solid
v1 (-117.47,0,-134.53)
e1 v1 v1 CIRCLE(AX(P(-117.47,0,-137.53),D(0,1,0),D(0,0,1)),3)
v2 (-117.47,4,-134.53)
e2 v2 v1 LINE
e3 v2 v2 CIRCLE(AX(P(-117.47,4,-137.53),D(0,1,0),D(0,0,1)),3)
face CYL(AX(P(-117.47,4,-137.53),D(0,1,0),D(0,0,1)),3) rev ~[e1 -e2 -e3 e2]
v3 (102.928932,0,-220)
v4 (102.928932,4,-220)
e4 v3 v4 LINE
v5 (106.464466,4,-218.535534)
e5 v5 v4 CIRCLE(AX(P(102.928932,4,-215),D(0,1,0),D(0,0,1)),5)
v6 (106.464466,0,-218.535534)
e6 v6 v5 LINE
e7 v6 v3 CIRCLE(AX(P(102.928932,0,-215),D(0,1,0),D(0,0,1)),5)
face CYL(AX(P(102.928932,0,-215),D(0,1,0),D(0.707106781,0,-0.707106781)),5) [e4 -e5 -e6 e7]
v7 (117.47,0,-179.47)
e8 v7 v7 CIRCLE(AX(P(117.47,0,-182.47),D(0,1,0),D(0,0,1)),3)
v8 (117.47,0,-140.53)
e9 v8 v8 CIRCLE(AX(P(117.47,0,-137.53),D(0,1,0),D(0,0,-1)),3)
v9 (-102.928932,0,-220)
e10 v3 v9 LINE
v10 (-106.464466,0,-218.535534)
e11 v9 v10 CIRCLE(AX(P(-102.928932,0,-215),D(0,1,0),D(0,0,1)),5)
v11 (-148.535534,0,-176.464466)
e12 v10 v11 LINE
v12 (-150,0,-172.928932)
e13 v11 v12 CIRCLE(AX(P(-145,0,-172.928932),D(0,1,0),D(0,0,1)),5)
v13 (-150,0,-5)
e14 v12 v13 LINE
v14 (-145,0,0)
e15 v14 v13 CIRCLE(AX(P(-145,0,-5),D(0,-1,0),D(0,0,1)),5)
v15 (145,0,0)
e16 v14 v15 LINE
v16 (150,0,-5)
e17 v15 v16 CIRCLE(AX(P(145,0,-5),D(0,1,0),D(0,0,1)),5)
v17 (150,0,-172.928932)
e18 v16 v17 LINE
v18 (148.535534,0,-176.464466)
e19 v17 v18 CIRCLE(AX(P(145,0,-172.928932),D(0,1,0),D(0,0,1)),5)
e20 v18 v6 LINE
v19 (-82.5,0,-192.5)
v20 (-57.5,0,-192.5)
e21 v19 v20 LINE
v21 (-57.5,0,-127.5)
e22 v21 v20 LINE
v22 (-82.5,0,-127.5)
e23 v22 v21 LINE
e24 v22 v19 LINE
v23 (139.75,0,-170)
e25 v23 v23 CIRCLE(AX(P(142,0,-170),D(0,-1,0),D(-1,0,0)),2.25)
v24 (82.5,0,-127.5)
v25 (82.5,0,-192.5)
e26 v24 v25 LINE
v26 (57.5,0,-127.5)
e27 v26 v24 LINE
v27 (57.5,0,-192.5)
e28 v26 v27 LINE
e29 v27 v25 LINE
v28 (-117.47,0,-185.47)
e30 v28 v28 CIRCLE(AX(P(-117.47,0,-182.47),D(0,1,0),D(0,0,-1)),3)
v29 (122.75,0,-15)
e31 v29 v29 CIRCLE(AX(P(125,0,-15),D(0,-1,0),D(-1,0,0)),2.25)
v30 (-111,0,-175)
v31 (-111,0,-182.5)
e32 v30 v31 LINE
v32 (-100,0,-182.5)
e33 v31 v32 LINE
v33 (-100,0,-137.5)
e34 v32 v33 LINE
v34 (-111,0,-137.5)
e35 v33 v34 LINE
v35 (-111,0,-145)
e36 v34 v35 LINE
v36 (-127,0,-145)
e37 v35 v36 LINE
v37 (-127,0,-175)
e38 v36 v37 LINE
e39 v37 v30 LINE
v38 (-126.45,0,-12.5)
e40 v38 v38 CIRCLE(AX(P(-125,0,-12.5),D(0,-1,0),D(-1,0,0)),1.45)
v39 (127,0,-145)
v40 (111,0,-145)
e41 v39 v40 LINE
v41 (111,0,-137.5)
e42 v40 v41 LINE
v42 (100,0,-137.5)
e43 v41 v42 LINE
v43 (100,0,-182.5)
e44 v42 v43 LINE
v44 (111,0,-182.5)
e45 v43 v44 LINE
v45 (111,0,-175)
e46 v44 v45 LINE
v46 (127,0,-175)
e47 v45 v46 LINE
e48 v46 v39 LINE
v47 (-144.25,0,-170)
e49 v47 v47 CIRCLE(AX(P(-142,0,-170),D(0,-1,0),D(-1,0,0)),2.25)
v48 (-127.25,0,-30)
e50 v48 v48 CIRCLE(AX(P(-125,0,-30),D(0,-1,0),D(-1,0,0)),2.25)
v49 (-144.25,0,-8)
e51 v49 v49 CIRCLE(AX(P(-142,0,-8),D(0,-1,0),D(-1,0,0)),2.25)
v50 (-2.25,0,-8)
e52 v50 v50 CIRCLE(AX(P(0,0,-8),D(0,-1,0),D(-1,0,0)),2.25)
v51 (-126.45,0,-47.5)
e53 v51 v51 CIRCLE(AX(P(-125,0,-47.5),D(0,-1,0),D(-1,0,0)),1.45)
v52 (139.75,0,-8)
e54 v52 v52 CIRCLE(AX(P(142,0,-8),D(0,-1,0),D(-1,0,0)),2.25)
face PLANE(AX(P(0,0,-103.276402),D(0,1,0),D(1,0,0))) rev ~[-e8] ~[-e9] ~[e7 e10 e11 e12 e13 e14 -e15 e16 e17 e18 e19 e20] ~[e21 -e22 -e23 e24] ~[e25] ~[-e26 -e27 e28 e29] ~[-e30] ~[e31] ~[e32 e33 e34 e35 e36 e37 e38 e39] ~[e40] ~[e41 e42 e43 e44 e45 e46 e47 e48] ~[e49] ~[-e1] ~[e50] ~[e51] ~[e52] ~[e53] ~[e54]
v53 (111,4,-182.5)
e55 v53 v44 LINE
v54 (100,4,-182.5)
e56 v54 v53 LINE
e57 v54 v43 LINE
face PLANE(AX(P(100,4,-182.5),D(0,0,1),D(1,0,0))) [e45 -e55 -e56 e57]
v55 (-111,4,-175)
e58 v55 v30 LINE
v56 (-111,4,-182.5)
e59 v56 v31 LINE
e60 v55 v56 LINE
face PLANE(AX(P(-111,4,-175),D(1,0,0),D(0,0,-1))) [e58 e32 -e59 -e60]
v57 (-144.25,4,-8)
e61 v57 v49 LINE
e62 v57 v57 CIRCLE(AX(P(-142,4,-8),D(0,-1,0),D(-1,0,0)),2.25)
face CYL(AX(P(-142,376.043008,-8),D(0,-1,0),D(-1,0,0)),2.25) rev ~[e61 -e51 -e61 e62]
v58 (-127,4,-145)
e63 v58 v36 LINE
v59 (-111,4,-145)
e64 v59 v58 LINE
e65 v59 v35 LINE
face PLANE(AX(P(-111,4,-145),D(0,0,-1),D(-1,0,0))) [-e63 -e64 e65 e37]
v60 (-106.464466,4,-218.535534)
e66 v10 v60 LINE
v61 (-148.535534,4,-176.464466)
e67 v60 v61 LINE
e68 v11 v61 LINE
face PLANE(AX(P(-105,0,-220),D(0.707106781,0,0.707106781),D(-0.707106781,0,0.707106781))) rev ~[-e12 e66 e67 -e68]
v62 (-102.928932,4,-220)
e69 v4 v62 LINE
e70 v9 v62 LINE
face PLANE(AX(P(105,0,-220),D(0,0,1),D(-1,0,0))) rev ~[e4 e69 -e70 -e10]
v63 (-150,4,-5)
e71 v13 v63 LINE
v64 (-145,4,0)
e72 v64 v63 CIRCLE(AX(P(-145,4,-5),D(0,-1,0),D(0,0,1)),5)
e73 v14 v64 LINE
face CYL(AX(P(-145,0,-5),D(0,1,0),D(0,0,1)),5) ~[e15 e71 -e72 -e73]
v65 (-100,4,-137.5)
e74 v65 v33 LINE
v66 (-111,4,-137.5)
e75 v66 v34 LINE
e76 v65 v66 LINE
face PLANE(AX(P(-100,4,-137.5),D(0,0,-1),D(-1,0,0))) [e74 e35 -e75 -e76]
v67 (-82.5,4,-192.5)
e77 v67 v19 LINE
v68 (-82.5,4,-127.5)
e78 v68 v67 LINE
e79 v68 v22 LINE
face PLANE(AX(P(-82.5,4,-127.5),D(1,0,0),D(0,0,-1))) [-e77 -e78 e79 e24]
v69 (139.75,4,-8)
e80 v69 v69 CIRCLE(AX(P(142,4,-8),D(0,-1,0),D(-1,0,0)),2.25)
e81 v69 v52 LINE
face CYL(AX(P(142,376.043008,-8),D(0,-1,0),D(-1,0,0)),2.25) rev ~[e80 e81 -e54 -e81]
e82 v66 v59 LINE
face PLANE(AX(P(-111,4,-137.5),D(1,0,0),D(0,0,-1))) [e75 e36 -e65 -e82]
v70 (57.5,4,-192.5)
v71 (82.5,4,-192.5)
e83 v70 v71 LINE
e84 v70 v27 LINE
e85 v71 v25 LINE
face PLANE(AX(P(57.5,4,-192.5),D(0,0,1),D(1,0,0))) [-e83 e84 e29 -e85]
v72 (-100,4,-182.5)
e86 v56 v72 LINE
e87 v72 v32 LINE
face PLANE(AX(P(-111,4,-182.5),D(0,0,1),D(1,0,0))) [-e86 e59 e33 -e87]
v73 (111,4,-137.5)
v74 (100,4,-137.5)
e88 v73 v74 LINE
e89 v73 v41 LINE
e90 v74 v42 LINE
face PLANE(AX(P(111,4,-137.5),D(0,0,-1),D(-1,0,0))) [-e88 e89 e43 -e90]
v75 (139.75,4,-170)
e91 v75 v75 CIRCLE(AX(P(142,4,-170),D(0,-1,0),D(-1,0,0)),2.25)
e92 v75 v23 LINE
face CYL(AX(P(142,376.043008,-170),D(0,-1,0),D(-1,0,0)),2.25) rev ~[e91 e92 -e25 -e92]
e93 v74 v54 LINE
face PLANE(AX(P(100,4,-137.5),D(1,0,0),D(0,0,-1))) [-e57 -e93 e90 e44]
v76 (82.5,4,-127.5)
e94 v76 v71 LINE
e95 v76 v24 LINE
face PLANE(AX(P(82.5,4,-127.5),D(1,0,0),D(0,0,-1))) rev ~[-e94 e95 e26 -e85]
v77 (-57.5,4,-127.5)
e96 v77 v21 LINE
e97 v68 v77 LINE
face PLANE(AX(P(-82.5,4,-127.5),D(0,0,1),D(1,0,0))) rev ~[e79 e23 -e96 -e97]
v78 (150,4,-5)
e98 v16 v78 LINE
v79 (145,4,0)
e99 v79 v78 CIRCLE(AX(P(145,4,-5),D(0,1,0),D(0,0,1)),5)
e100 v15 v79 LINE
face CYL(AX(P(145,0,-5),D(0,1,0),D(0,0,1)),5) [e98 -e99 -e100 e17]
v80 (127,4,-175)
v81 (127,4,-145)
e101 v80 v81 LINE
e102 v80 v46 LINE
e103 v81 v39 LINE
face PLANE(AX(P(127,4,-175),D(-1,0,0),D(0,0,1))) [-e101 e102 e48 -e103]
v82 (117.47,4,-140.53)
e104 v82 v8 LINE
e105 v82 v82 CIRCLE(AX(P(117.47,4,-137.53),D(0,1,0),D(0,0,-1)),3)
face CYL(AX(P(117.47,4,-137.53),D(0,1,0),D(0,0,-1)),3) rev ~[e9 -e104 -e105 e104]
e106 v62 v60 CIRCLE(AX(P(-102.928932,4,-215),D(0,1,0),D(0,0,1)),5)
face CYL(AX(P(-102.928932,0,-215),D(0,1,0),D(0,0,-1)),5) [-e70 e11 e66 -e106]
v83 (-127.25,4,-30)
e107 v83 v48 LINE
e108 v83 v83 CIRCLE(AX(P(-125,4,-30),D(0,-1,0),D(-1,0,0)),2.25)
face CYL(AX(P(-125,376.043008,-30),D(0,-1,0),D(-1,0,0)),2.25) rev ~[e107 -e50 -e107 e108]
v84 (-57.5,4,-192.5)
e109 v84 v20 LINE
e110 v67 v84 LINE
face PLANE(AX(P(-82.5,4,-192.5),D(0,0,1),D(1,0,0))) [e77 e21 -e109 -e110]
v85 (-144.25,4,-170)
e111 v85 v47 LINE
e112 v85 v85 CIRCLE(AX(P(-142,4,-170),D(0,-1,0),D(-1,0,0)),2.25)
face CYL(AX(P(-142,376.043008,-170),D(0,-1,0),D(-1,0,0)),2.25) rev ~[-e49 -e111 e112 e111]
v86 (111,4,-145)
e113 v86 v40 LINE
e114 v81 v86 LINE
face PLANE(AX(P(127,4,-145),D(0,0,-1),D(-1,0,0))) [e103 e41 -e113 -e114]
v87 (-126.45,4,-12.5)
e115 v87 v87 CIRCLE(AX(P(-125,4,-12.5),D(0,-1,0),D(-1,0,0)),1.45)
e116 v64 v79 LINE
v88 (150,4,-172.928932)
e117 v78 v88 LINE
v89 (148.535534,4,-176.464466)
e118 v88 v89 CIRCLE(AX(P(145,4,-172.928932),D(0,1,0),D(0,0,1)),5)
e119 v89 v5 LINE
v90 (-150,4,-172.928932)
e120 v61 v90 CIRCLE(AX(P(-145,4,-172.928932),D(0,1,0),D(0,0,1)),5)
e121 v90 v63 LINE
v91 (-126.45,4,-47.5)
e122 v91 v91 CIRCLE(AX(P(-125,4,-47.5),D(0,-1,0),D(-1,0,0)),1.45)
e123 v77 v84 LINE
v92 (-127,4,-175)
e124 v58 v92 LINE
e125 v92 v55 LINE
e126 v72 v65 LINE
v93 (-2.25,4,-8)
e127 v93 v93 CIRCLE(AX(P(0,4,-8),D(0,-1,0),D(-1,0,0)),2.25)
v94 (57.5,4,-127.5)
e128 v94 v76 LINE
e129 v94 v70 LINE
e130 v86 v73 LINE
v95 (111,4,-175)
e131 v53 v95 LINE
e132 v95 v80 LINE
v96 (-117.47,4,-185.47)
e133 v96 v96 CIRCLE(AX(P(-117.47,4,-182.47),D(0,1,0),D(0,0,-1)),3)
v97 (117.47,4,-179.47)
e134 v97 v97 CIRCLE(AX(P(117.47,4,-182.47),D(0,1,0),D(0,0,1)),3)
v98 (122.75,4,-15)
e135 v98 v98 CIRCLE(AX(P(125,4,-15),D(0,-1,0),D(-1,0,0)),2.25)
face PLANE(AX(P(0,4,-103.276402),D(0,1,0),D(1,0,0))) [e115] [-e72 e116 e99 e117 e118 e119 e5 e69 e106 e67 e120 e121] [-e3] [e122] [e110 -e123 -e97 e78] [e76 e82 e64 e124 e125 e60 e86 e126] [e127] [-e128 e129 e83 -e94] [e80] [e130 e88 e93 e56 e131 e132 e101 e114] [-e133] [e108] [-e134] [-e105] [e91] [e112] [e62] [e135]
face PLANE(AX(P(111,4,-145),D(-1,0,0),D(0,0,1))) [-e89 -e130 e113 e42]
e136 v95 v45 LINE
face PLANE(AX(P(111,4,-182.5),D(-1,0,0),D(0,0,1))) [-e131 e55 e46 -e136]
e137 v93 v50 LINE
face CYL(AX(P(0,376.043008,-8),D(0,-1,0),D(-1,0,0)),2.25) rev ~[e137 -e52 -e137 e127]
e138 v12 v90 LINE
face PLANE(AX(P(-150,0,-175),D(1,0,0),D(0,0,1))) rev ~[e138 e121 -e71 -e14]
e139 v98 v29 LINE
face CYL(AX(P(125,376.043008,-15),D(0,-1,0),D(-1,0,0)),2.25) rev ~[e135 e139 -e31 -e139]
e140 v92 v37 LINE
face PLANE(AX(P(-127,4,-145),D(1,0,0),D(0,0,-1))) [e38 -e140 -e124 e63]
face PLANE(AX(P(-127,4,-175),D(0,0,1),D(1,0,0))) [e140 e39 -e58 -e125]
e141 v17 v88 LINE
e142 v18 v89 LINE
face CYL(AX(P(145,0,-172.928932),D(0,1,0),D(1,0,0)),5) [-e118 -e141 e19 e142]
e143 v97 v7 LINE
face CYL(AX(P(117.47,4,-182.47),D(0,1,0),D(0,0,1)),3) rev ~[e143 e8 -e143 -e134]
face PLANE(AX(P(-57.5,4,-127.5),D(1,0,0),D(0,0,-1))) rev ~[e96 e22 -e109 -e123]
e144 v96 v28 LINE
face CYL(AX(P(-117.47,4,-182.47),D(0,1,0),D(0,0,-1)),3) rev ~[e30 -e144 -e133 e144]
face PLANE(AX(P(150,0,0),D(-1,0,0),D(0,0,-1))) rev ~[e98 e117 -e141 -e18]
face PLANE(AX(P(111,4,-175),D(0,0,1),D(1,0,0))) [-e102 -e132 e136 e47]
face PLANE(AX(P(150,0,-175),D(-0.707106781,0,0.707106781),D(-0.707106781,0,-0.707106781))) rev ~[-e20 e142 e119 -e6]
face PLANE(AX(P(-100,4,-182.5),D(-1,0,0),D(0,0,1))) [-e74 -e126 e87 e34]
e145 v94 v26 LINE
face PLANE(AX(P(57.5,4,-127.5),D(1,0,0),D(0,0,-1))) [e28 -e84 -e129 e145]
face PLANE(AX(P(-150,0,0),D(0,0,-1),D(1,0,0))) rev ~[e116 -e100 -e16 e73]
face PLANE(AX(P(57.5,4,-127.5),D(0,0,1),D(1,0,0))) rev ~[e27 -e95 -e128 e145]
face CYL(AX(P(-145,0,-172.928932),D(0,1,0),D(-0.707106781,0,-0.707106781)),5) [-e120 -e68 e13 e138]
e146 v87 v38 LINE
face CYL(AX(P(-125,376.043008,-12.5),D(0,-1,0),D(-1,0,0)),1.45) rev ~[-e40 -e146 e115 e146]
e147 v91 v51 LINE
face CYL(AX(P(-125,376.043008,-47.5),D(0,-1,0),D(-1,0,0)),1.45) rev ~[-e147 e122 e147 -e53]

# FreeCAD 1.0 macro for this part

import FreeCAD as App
import Part
import Sketcher

V = App.Vector


def edges_at(feature, points):
    """Names of the edges that pass closest to the given points."""
    edges = feature.Shape.Edges
    near = lambda p: min(range(len(edges)), key=lambda i: edges[i].distToShape(Part.Vertex(*p))[0])
    return sorted({f"Edge{near(p) + 1}" for p in points})


def add_polygon(sketch, points):
    """Adds a closed chain of lines whose ends are joined by coincident constraints."""
    first, n = sketch.GeometryCount, len(points)
    for a, b in zip(points, points[1:] + points[:1]):
        sketch.addGeometry(Part.LineSegment(App.Vector(*a, 0), App.Vector(*b, 0)), False)
    for i in range(n):
        sketch.addConstraint(Sketcher.Constraint("Coincident", first + i, 2, first + (i + 1) % n, 1))

doc = App.newDocument("Part")
params = doc.addObject("Spreadsheet::Sheet", "Params")
for row, (alias, value) in enumerate([
    ("sketch1_width", "300 mm"),
    ("sketch1_width2", "210 mm"),
    ("sketch1_height", "175 mm"),
    ("pad1_length", "4 mm"),
    ("fillet_radius", "5 mm"),
    ("sketch2_diameter", "6 mm"),
    ("sketch2_width", "25 mm"),
    ("sketch2_width2", "11 mm"),
    ("sketch2_width3", "16 mm"),
    ("sketch2_height", "65 mm"),
    ("sketch3_diameter", "4.5 mm"),
    ("hole_diameter", "4.5 mm"),
    ("sketch4_diameter", "4.5 mm"),
    ("hole2_diameter", "4.5 mm"),
    ("sketch5_diameter", "2.9 mm"),
    ("hole3_diameter", "2.9 mm"),
], start=1):
    params.set(f"A{row}", alias)
    params.set(f"B{row}", "=" + value)
    params.setAlias(f"B{row}", alias)

body = doc.addObject("PartDesign::Body", "Body")

# Sketch on XZ plane
sketch1 = body.newObject("Sketcher::SketchObject", "Sketch")
sketch1.AttachmentSupport = (doc.getObject("XZ_Plane"), [""])
sketch1.MapMode = "FlatFace"
add_polygon(sketch1, [(-150, 0), (150, 0), (150, -175), (105, -220), (-105, -220), (-150, -175)])  # lines 0-5
sketch1.addConstraint([
    Sketcher.Constraint("Horizontal", 0),
    Sketcher.Constraint("Vertical", 1),
    Sketcher.Constraint("Horizontal", 3),
    Sketcher.Constraint("Vertical", 5),
    Sketcher.Constraint("Symmetric", 0, 2, 5, 2, -1, 1),
    Sketcher.Constraint("Perpendicular", 2, 4),
    Sketcher.Constraint("Horizontal", 1, 2, 4, 2),
    Sketcher.Constraint("Equal", 2, 4),
    Sketcher.Constraint("DistanceX", 0, 1, 0, 2, 300.0),
    Sketcher.Constraint("DistanceX", 3, 2, 3, 1, 210.0),
    Sketcher.Constraint("DistanceY", 1, 2, 1, 1, 175.0),
])
sketch1.setExpression("Constraints[14]", "Params.sketch1_width")
sketch1.setExpression("Constraints[15]", "Params.sketch1_width2")
sketch1.setExpression("Constraints[16]", "Params.sketch1_height")
pad1 = body.newObject("PartDesign::Pad", "Pad")
pad1.Profile = sketch1
pad1.setExpression("Length", "Params.pad1_length")
pad1.Reversed = True
doc.recompute()

fillet = body.newObject("PartDesign::Fillet", "Fillet")
fillet.Base = (pad1, edges_at(pad1, [
    (150, 2, 0),
    (-150, 2, 0),
    (-150, 2, -175),
    (-105, 2, -220),
    (105, 2, -220),
    (150, 2, -175),
]))
fillet.setExpression("Radius", "Params.fillet_radius")

# Sketch on XZ plane
sketch2 = body.newObject("Sketcher::SketchObject", "Sketch001")
sketch2.AttachmentSupport = (doc.getObject("XZ_Plane"), [""])
sketch2.MapMode = "FlatFace"
sketch2.AttachmentOffset = App.Placement(V(0, 0, -4), App.Rotation())
sketch2.addGeometry(Part.Circle(V(117.5, -182.5, 0), V(0, 0, 1), 3), False)  # 0
sketch2.addGeometry(Part.Circle(V(117.5, -137.5, 0), V(0, 0, 1), 3), False)  # 1
sketch2.addGeometry(Part.Circle(V(-117.5, -137.5, 0), V(0, 0, 1), 3), False)  # 2
sketch2.addGeometry(Part.Circle(V(-117.5, -182.5, 0), V(0, 0, 1), 3), False)  # 3
add_polygon(sketch2, [(57.5, -192.5), (57.5, -127.5), (82.5, -127.5), (82.5, -192.5)])  # lines 4-7
add_polygon(sketch2, [(100, -182.5), (100, -137.5), (111, -137.5), (111, -145), (127, -145), (127, -175), (111, -175), (111, -182.5)])  # lines 8-15
add_polygon(sketch2, [(-111, -145), (-111, -137.5), (-100, -137.5), (-100, -182.5), (-111, -182.5), (-111, -175), (-127, -175), (-127, -145)])  # lines 16-23
add_polygon(sketch2, [(-82.5, -192.5), (-82.5, -127.5), (-57.5, -127.5), (-57.5, -192.5)])  # lines 24-27
sketch2.addConstraint([
    Sketcher.Constraint("Vertical", 4),
    Sketcher.Constraint("Horizontal", 5),
    Sketcher.Constraint("Vertical", 6),
    Sketcher.Constraint("Horizontal", 7),
    Sketcher.Constraint("Vertical", 8),
    Sketcher.Constraint("Horizontal", 9),
    Sketcher.Constraint("Vertical", 10),
    Sketcher.Constraint("Horizontal", 11),
    Sketcher.Constraint("Vertical", 12),
    Sketcher.Constraint("Horizontal", 13),
    Sketcher.Constraint("Vertical", 14),
    Sketcher.Constraint("Horizontal", 15),
    Sketcher.Constraint("Vertical", 16),
    Sketcher.Constraint("Horizontal", 17),
    Sketcher.Constraint("Vertical", 18),
    Sketcher.Constraint("Horizontal", 19),
    Sketcher.Constraint("Vertical", 20),
    Sketcher.Constraint("Horizontal", 21),
    Sketcher.Constraint("Vertical", 22),
    Sketcher.Constraint("Horizontal", 23),
    Sketcher.Constraint("Vertical", 24),
    Sketcher.Constraint("Horizontal", 25),
    Sketcher.Constraint("Vertical", 26),
    Sketcher.Constraint("Horizontal", 27),
    Sketcher.Constraint("Equal", 0, 1),
    Sketcher.Constraint("Equal", 1, 2),
    Sketcher.Constraint("Equal", 2, 3),
    Sketcher.Constraint("Symmetric", 1, 3, 2, 3, -2),
    Sketcher.Constraint("Symmetric", 0, 3, 3, 3, -2),
    Sketcher.Constraint("Symmetric", 9, 2, 16, 2, -2),
    Sketcher.Constraint("Symmetric", 15, 2, 18, 2, -2),
    Sketcher.Constraint("Symmetric", 13, 2, 20, 2, -2),
    Sketcher.Constraint("Symmetric", 11, 2, 22, 2, -2),
    Sketcher.Constraint("Symmetric", 5, 2, 24, 2, -2),
    Sketcher.Constraint("Symmetric", 7, 2, 26, 2, -2),
    Sketcher.Constraint("Vertical", 0, 3, 1, 3),
    Sketcher.Constraint("Vertical", 10, 2, 13, 2),
    Sketcher.Constraint("Equal", 10, 14),
    Sketcher.Constraint("Diameter", 0, 6.0),
    Sketcher.Constraint("DistanceX", 5, 1, 5, 2, 25.0),
    Sketcher.Constraint("DistanceX", 9, 1, 9, 2, 11.0),
    Sketcher.Constraint("DistanceX", 11, 1, 11, 2, 16.0),
    Sketcher.Constraint("DistanceY", 4, 1, 4, 2, 65.0),
    Sketcher.Constraint("DistanceY", 8, 1, 8, 2, 45.0),
    Sketcher.Constraint("DistanceY", 12, 2, 12, 1, 30.0),
    Sketcher.Constraint("DistanceX", -1, 1, 8, 2, 100.0),
    Sketcher.Constraint("DistanceY", 10, 2, -1, 1, 145.0),
    Sketcher.Constraint("DistanceY", 8, 2, 5, 2, 10.0),
    Sketcher.Constraint("DistanceX", -1, 1, 4, 2, 57.5),
    Sketcher.Constraint("DistanceX", -1, 1, 0, 3, 117.47),
    Sketcher.Constraint("DistanceY", 0, 3, -1, 1, 182.47),
    Sketcher.Constraint("DistanceY", 1, 3, -1, 1, 137.53),
])
sketch2.setExpression("Constraints[62]", "Params.sketch2_diameter")
sketch2.setExpression("Constraints[63]", "Params.sketch2_width")
sketch2.setExpression("Constraints[64]", "Params.sketch2_width2")
sketch2.setExpression("Constraints[65]", "Params.sketch2_width3")
sketch2.setExpression("Constraints[66]", "Params.sketch2_height")
pocket1 = body.newObject("PartDesign::Pocket", "Pocket")
pocket1.Profile = sketch2
pocket1.Type = "ThroughAll"
pocket1.Reversed = True

# Sketch on XZ plane
sketch3 = body.newObject("Sketcher::SketchObject", "Sketch002")
sketch3.AttachmentSupport = (doc.getObject("XZ_Plane"), [""])
sketch3.MapMode = "FlatFace"
sketch3.AttachmentOffset = App.Placement(V(0, 0, -4), App.Rotation())
sketch3.addGeometry([
    Part.Circle(V(-125, -30, 0), V(0, 0, 1), 2.2),
    Part.Circle(V(125, -15, 0), V(0, 0, 1), 2.2),
], False)
sketch3.addConstraint([
    Sketcher.Constraint("Equal", 0, 1),
    Sketcher.Constraint("Diameter", 0, 4.5),
    Sketcher.Constraint("DistanceX", 0, 3, -1, 1, 125.0),
    Sketcher.Constraint("DistanceY", 0, 3, -1, 1, 30.0),
    Sketcher.Constraint("DistanceX", -1, 1, 1, 3, 125.0),
    Sketcher.Constraint("DistanceY", 1, 3, -1, 1, 15.0),
])
sketch3.setExpression("Constraints[1]", "Params.sketch3_diameter")
doc.recompute()
hole = body.newObject("PartDesign::Hole", "Hole")
hole.Profile = sketch3
hole.ThreadType = "None"
hole.setExpression("Diameter", "Params.hole_diameter")
hole.DepthType = "ThroughAll"
hole.Reversed = True

# Sketch on XZ plane
sketch4 = body.newObject("Sketcher::SketchObject", "Sketch003")
sketch4.AttachmentSupport = (doc.getObject("XZ_Plane"), [""])
sketch4.MapMode = "FlatFace"
sketch4.AttachmentOffset = App.Placement(V(0, 0, -4), App.Rotation())
sketch4.addGeometry([
    Part.Circle(V(-142, -8, 0), V(0, 0, 1), 2.2),  # 0
    Part.Circle(V(0, -8, 0), V(0, 0, 1), 2.2),  # 1
    Part.Circle(V(142, -8, 0), V(0, 0, 1), 2.2),  # 2
    Part.Circle(V(142, -170, 0), V(0, 0, 1), 2.2),  # 3
    Part.Circle(V(-142, -170, 0), V(0, 0, 1), 2.2),  # 4
], False)
sketch4.addConstraint([
    Sketcher.Constraint("Equal", 0, 1),
    Sketcher.Constraint("Equal", 1, 2),
    Sketcher.Constraint("Equal", 2, 3),
    Sketcher.Constraint("Equal", 3, 4),
    Sketcher.Constraint("Symmetric", 0, 3, 2, 3, -2),
    Sketcher.Constraint("Symmetric", 3, 3, 4, 3, -2),
    Sketcher.Constraint("PointOnObject", 1, 3, -2),
    Sketcher.Constraint("Horizontal", 0, 3, 1, 3),
    Sketcher.Constraint("Vertical", 2, 3, 3, 3),
    Sketcher.Constraint("Diameter", 0, 4.5),
    Sketcher.Constraint("DistanceX", 0, 3, -1, 1, 142.0),
    Sketcher.Constraint("DistanceY", 0, 3, -1, 1, 8.0),
    Sketcher.Constraint("DistanceY", 3, 3, -1, 1, 170.0),
])
sketch4.setExpression("Constraints[9]", "Params.sketch4_diameter")
doc.recompute()
hole2 = body.newObject("PartDesign::Hole", "Hole001")
hole2.Profile = sketch4
hole2.ThreadType = "None"
hole2.setExpression("Diameter", "Params.hole2_diameter")
hole2.DepthType = "ThroughAll"
hole2.Reversed = True

# Sketch on XZ plane
sketch5 = body.newObject("Sketcher::SketchObject", "Sketch004")
sketch5.AttachmentSupport = (doc.getObject("XZ_Plane"), [""])
sketch5.MapMode = "FlatFace"
sketch5.AttachmentOffset = App.Placement(V(0, 0, -4), App.Rotation())
sketch5.addGeometry([
    Part.Circle(V(-125, -47.5, 0), V(0, 0, 1), 1.4),
    Part.Circle(V(-125, -12.5, 0), V(0, 0, 1), 1.4),
], False)
sketch5.addConstraint([
    Sketcher.Constraint("Equal", 0, 1),
    Sketcher.Constraint("Vertical", 0, 3, 1, 3),
    Sketcher.Constraint("Diameter", 0, 2.9),
    Sketcher.Constraint("DistanceX", 0, 3, -1, 1, 125.0),
    Sketcher.Constraint("DistanceY", 0, 3, 1, 3, 35.0),
    Sketcher.Constraint("DistanceY", 0, 3, -1, 1, 47.5),
])
sketch5.setExpression("Constraints[2]", "Params.sketch5_diameter")
doc.recompute()
hole3 = body.newObject("PartDesign::Hole", "Hole002")
hole3.Profile = sketch5
hole3.ThreadType = "None"
hole3.setExpression("Diameter", "Params.hole3_diameter")
hole3.DepthType = "ThroughAll"
hole3.Reversed = True

doc.recompute()
